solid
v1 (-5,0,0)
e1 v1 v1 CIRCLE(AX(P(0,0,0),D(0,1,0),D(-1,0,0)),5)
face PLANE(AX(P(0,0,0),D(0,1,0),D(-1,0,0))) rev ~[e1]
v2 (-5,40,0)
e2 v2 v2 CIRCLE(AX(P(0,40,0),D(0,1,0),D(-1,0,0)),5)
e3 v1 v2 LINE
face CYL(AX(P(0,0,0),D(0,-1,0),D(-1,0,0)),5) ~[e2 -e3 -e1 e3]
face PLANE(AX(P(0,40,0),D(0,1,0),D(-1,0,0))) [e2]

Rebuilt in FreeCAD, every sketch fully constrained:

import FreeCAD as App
import Part
import Sketcher
Q = App.Units.Quantity

doc = App.newDocument("Part")
body = doc.addObject("PartDesign::Body", "Body")

sketch1 = body.newObject("Sketcher::SketchObject", "Sketch")
sketch1.AttachmentSupport = (doc.getObject("XZ_Plane"), [""])
sketch1.MapMode = "FlatFace"
sketch1.addGeometry(Part.Circle(App.Vector(0, 0, 0), App.Vector(0, 0, 1), 5), False)
sketch1.addConstraint([
    Sketcher.Constraint("Coincident", 0, 3, -1, 1),
    Sketcher.Constraint("Diameter", 0, Q("10 mm")),
])
pad1 = body.newObject("PartDesign::Pad", "Pad")
pad1.Profile = sketch1
pad1.Length = 40
pad1.Reversed = True

doc.recompute()
